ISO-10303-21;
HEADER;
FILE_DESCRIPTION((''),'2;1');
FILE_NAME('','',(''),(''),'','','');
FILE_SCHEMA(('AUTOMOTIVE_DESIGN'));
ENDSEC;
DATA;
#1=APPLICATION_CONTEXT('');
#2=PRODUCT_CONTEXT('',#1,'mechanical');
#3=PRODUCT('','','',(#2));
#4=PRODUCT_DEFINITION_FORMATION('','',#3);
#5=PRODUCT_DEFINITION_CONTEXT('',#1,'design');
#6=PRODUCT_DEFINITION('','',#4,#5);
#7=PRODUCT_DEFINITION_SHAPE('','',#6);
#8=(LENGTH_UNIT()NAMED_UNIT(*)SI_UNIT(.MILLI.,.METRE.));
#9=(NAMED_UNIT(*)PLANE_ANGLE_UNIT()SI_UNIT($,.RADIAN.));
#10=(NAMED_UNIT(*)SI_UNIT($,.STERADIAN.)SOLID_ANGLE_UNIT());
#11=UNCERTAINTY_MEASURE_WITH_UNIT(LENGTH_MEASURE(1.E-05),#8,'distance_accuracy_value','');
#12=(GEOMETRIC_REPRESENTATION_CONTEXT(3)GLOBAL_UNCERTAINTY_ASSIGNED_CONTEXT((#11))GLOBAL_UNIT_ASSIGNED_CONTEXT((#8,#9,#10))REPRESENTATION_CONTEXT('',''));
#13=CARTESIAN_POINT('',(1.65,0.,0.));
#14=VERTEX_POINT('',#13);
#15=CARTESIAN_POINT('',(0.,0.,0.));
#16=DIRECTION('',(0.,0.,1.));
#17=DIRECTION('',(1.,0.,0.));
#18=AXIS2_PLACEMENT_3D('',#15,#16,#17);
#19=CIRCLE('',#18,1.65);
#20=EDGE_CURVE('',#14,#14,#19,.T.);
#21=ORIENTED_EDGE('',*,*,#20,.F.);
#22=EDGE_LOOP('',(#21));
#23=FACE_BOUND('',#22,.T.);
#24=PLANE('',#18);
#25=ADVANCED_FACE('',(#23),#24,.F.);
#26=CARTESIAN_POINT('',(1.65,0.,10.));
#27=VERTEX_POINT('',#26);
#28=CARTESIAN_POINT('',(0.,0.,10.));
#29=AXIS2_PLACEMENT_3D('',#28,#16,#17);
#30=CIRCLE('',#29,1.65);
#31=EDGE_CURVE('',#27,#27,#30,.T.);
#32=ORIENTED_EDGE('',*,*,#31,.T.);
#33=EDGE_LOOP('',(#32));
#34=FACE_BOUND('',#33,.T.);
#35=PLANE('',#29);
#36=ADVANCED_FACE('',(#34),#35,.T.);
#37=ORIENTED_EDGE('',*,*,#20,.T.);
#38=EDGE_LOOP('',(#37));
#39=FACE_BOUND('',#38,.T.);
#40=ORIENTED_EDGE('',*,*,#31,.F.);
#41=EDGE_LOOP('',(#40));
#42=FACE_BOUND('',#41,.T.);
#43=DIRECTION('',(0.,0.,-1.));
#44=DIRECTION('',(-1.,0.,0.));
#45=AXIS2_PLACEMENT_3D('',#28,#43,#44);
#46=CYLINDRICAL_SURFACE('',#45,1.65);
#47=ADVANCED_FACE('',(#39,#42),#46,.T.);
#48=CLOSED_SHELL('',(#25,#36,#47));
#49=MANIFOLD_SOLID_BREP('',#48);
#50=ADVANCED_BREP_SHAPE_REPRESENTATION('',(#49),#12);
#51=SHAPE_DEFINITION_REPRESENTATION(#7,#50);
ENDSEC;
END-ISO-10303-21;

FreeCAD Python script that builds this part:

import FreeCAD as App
import Part
import Sketcher

V = App.Vector
Q = App.Units.Quantity

doc = App.newDocument("Part")
params = doc.addObject("Spreadsheet::Sheet", "Params")
for row, (alias, value) in enumerate([
    ("sketch1_diameter", "3.3 mm"),
    ("pad1_length", "10 mm"),
], start=1):
    params.set(f"A{row}", alias)
    params.set(f"B{row}", "=" + value)
    params.setAlias(f"B{row}", alias)

body = doc.addObject("PartDesign::Body", "Body")

# Sketch on XY plane
sketch1 = body.newObject("Sketcher::SketchObject", "Sketch")
sketch1.AttachmentSupport = (doc.getObject("XY_Plane"), [""])
sketch1.MapMode = "FlatFace"
sketch1.addGeometry(Part.Circle(V(0, 0, 0), V(0, 0, 1), 1.6), False)
sketch1.addConstraint([
    Sketcher.Constraint("Coincident", 0, 3, -1, 1),
    Sketcher.Constraint("Diameter", 0, Q("3.3 mm")),
])
sketch1.setExpression("Constraints[1]", "Params.sketch1_diameter")
pad1 = body.newObject("PartDesign::Pad", "Pad")
pad1.Profile = sketch1
pad1.setExpression("Length", "Params.pad1_length")

doc.recompute()
